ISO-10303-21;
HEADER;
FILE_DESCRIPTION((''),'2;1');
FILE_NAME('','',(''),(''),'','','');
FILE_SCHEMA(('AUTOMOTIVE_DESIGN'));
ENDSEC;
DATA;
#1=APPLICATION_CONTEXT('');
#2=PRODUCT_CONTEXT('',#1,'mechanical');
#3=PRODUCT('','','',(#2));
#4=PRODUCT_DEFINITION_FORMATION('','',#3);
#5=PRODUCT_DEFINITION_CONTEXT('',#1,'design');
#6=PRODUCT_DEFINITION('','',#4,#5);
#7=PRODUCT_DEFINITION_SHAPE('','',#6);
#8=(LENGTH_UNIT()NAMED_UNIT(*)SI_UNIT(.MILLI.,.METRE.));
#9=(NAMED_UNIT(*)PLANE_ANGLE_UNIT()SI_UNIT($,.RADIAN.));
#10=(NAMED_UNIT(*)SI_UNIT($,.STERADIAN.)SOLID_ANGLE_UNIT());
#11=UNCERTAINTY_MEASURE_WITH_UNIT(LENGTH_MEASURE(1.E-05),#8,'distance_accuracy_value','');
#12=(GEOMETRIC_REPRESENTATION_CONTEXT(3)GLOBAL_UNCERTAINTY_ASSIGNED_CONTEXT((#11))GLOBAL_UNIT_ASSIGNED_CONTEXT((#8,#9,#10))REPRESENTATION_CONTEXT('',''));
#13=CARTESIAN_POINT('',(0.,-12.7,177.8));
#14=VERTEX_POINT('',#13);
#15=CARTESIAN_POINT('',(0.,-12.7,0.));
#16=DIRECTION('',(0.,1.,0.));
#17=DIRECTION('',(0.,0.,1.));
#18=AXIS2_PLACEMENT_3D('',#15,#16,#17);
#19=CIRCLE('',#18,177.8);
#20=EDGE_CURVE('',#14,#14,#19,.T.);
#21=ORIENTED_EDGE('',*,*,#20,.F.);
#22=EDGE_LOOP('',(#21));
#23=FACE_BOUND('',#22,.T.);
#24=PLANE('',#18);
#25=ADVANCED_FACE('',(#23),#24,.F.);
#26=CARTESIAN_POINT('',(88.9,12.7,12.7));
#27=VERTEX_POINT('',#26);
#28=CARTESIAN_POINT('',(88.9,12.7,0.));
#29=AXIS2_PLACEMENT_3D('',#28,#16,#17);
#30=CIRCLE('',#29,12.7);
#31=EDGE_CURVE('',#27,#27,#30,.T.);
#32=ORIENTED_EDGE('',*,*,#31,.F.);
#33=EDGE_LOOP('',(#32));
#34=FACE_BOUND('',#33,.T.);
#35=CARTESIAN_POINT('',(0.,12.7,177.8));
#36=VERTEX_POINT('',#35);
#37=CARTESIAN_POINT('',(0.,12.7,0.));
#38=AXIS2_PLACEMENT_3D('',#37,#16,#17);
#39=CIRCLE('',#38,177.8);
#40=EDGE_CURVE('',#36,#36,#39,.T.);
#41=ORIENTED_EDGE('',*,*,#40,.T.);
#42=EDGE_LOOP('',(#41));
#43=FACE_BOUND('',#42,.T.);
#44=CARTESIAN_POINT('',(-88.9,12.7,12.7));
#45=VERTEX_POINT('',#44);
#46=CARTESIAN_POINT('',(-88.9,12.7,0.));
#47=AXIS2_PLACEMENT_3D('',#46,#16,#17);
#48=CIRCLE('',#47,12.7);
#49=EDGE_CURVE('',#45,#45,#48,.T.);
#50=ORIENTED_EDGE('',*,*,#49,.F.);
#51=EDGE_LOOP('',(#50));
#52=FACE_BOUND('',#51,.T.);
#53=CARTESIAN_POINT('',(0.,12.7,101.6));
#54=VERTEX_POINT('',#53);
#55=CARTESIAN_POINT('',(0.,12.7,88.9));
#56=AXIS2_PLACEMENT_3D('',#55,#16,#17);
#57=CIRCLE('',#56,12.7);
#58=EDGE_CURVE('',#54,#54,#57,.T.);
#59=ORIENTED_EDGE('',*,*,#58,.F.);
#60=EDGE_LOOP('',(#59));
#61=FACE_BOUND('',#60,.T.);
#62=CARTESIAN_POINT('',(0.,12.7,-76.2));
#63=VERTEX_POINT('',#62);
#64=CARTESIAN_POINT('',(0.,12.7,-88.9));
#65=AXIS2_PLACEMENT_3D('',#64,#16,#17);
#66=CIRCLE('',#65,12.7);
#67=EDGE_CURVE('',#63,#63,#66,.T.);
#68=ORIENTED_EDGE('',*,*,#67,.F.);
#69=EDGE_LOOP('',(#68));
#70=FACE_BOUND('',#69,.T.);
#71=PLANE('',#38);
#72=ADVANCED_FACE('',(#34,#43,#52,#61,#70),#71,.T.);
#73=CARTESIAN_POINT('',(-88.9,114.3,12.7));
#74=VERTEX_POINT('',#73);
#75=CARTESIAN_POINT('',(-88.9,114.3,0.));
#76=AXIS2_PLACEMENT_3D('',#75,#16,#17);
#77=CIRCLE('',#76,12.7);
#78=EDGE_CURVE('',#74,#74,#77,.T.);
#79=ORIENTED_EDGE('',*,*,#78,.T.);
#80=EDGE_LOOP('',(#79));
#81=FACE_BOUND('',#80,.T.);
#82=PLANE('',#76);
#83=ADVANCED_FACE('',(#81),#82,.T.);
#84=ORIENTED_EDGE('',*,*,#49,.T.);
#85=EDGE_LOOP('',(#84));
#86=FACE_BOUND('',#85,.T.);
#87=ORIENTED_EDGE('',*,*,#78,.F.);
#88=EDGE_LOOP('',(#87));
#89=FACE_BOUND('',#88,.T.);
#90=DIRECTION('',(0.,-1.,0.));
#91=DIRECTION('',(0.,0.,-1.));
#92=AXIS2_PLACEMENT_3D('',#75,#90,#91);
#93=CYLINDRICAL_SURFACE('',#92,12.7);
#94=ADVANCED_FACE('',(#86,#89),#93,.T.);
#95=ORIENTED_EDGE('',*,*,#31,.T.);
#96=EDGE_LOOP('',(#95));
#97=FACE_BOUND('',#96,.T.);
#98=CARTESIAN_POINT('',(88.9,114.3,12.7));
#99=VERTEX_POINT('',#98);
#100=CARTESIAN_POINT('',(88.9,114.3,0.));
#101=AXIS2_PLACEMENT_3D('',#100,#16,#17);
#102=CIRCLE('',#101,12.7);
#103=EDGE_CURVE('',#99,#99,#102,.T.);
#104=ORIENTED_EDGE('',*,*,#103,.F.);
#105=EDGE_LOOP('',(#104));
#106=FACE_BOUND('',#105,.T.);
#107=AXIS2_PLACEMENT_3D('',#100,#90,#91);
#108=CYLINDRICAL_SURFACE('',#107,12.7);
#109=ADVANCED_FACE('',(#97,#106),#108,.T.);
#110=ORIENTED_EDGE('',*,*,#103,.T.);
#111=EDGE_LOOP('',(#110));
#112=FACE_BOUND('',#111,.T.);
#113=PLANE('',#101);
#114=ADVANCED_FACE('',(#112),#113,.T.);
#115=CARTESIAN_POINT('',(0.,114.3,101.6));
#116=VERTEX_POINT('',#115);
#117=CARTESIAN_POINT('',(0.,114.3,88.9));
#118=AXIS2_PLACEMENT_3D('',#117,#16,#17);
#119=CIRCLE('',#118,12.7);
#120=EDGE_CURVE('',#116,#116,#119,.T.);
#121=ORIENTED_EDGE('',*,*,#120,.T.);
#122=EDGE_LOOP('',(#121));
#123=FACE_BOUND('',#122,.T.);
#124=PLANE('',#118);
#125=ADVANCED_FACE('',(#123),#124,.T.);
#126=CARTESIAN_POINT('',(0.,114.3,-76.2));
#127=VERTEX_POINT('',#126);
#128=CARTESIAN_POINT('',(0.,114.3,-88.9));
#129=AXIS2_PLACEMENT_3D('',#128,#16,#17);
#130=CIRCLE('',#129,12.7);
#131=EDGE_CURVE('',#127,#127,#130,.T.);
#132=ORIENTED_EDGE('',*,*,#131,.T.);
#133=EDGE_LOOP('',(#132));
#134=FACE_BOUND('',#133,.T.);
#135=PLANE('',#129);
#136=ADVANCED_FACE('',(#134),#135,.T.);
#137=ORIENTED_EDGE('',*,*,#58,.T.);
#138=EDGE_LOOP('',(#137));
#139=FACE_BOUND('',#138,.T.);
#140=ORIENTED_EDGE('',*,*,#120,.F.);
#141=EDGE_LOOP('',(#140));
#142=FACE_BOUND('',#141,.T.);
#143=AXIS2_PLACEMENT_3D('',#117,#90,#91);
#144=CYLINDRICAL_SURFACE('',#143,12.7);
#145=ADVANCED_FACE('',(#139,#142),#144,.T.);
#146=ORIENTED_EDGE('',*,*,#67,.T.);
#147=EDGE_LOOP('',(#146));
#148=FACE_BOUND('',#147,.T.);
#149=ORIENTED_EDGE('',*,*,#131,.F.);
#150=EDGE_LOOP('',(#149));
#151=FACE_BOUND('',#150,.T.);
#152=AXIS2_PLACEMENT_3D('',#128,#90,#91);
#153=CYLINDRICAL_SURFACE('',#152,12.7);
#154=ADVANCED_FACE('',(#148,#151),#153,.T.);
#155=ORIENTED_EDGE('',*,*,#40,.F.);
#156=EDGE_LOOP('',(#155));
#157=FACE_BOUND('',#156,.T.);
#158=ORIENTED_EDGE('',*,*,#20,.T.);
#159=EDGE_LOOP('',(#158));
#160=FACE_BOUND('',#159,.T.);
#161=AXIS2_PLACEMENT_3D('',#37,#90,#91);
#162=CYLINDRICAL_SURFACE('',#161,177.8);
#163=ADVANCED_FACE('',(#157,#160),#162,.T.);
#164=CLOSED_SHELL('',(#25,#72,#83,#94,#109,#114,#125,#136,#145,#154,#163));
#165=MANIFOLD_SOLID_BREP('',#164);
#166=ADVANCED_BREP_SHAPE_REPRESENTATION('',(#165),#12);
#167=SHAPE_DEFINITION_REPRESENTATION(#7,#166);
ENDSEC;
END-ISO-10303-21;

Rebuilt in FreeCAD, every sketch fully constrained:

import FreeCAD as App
import Part
import Sketcher
Q = App.Units.Quantity

doc = App.newDocument("Part")
body = doc.addObject("PartDesign::Body", "Body")

# Sketch on XZ plane
sketch1 = body.newObject("Sketcher::SketchObject", "Sketch")
sketch1.AttachmentSupport = (doc.getObject("XZ_Plane"), [""])
sketch1.MapMode = "FlatFace"
sketch1.addGeometry(Part.Circle(App.Vector(0, 0, 0), App.Vector(0, 0, 1), 177.8), False)
sketch1.addConstraint([
    Sketcher.Constraint("Coincident", 0, 3, -1, 1),
    Sketcher.Constraint("Diameter", 0, Q("14 in")),
])
pad1 = body.newObject("PartDesign::Pad", "Pad")
pad1.Profile = sketch1
pad1.Length = Q("1 in")
pad1.Midplane = True

# Sketch on XZ plane
sketch2 = body.newObject("Sketcher::SketchObject", "Sketch001")
sketch2.AttachmentSupport = (doc.getObject("XZ_Plane"), [""])
sketch2.MapMode = "FlatFace"
sketch2.AttachmentOffset = App.Placement(App.Vector(0, 0, -0.5 * 25.4), App.Rotation())
sketch2.addGeometry([
    Part.Circle(App.Vector(0, -88.9, 0), App.Vector(0, 0, 1), 12.7),
    Part.Circle(App.Vector(0, 88.9, 0), App.Vector(0, 0, 1), 12.7),
    Part.Circle(App.Vector(88.9, 0, 0), App.Vector(0, 0, 1), 12.7),
    Part.Circle(App.Vector(-88.9, 0, 0), App.Vector(0, 0, 1), 12.7),
], False)
sketch2.addConstraint([
    Sketcher.Constraint("Equal", 0, 1),
    Sketcher.Constraint("Equal", 1, 2),
    Sketcher.Constraint("Equal", 2, 3),
    Sketcher.Constraint("Symmetric", 0, 3, 1, 3, -1, 1),
    Sketcher.Constraint("Symmetric", 2, 3, 3, 3, -1, 1),
    Sketcher.Constraint("PointOnObject", 0, 3, -2),
    Sketcher.Constraint("PointOnObject", 2, 3, -1),
    Sketcher.Constraint("Diameter", 0, Q("1 in")),
    Sketcher.Constraint("DistanceY", 0, 3, 1, 3, Q("7 in")),
    Sketcher.Constraint("DistanceX", 3, 3, 2, 3, Q("7 in")),
])
pad2 = body.newObject("PartDesign::Pad", "Pad001")
pad2.Profile = sketch2
pad2.Length = Q("4 in")
pad2.Reversed = True

doc.recompute()
